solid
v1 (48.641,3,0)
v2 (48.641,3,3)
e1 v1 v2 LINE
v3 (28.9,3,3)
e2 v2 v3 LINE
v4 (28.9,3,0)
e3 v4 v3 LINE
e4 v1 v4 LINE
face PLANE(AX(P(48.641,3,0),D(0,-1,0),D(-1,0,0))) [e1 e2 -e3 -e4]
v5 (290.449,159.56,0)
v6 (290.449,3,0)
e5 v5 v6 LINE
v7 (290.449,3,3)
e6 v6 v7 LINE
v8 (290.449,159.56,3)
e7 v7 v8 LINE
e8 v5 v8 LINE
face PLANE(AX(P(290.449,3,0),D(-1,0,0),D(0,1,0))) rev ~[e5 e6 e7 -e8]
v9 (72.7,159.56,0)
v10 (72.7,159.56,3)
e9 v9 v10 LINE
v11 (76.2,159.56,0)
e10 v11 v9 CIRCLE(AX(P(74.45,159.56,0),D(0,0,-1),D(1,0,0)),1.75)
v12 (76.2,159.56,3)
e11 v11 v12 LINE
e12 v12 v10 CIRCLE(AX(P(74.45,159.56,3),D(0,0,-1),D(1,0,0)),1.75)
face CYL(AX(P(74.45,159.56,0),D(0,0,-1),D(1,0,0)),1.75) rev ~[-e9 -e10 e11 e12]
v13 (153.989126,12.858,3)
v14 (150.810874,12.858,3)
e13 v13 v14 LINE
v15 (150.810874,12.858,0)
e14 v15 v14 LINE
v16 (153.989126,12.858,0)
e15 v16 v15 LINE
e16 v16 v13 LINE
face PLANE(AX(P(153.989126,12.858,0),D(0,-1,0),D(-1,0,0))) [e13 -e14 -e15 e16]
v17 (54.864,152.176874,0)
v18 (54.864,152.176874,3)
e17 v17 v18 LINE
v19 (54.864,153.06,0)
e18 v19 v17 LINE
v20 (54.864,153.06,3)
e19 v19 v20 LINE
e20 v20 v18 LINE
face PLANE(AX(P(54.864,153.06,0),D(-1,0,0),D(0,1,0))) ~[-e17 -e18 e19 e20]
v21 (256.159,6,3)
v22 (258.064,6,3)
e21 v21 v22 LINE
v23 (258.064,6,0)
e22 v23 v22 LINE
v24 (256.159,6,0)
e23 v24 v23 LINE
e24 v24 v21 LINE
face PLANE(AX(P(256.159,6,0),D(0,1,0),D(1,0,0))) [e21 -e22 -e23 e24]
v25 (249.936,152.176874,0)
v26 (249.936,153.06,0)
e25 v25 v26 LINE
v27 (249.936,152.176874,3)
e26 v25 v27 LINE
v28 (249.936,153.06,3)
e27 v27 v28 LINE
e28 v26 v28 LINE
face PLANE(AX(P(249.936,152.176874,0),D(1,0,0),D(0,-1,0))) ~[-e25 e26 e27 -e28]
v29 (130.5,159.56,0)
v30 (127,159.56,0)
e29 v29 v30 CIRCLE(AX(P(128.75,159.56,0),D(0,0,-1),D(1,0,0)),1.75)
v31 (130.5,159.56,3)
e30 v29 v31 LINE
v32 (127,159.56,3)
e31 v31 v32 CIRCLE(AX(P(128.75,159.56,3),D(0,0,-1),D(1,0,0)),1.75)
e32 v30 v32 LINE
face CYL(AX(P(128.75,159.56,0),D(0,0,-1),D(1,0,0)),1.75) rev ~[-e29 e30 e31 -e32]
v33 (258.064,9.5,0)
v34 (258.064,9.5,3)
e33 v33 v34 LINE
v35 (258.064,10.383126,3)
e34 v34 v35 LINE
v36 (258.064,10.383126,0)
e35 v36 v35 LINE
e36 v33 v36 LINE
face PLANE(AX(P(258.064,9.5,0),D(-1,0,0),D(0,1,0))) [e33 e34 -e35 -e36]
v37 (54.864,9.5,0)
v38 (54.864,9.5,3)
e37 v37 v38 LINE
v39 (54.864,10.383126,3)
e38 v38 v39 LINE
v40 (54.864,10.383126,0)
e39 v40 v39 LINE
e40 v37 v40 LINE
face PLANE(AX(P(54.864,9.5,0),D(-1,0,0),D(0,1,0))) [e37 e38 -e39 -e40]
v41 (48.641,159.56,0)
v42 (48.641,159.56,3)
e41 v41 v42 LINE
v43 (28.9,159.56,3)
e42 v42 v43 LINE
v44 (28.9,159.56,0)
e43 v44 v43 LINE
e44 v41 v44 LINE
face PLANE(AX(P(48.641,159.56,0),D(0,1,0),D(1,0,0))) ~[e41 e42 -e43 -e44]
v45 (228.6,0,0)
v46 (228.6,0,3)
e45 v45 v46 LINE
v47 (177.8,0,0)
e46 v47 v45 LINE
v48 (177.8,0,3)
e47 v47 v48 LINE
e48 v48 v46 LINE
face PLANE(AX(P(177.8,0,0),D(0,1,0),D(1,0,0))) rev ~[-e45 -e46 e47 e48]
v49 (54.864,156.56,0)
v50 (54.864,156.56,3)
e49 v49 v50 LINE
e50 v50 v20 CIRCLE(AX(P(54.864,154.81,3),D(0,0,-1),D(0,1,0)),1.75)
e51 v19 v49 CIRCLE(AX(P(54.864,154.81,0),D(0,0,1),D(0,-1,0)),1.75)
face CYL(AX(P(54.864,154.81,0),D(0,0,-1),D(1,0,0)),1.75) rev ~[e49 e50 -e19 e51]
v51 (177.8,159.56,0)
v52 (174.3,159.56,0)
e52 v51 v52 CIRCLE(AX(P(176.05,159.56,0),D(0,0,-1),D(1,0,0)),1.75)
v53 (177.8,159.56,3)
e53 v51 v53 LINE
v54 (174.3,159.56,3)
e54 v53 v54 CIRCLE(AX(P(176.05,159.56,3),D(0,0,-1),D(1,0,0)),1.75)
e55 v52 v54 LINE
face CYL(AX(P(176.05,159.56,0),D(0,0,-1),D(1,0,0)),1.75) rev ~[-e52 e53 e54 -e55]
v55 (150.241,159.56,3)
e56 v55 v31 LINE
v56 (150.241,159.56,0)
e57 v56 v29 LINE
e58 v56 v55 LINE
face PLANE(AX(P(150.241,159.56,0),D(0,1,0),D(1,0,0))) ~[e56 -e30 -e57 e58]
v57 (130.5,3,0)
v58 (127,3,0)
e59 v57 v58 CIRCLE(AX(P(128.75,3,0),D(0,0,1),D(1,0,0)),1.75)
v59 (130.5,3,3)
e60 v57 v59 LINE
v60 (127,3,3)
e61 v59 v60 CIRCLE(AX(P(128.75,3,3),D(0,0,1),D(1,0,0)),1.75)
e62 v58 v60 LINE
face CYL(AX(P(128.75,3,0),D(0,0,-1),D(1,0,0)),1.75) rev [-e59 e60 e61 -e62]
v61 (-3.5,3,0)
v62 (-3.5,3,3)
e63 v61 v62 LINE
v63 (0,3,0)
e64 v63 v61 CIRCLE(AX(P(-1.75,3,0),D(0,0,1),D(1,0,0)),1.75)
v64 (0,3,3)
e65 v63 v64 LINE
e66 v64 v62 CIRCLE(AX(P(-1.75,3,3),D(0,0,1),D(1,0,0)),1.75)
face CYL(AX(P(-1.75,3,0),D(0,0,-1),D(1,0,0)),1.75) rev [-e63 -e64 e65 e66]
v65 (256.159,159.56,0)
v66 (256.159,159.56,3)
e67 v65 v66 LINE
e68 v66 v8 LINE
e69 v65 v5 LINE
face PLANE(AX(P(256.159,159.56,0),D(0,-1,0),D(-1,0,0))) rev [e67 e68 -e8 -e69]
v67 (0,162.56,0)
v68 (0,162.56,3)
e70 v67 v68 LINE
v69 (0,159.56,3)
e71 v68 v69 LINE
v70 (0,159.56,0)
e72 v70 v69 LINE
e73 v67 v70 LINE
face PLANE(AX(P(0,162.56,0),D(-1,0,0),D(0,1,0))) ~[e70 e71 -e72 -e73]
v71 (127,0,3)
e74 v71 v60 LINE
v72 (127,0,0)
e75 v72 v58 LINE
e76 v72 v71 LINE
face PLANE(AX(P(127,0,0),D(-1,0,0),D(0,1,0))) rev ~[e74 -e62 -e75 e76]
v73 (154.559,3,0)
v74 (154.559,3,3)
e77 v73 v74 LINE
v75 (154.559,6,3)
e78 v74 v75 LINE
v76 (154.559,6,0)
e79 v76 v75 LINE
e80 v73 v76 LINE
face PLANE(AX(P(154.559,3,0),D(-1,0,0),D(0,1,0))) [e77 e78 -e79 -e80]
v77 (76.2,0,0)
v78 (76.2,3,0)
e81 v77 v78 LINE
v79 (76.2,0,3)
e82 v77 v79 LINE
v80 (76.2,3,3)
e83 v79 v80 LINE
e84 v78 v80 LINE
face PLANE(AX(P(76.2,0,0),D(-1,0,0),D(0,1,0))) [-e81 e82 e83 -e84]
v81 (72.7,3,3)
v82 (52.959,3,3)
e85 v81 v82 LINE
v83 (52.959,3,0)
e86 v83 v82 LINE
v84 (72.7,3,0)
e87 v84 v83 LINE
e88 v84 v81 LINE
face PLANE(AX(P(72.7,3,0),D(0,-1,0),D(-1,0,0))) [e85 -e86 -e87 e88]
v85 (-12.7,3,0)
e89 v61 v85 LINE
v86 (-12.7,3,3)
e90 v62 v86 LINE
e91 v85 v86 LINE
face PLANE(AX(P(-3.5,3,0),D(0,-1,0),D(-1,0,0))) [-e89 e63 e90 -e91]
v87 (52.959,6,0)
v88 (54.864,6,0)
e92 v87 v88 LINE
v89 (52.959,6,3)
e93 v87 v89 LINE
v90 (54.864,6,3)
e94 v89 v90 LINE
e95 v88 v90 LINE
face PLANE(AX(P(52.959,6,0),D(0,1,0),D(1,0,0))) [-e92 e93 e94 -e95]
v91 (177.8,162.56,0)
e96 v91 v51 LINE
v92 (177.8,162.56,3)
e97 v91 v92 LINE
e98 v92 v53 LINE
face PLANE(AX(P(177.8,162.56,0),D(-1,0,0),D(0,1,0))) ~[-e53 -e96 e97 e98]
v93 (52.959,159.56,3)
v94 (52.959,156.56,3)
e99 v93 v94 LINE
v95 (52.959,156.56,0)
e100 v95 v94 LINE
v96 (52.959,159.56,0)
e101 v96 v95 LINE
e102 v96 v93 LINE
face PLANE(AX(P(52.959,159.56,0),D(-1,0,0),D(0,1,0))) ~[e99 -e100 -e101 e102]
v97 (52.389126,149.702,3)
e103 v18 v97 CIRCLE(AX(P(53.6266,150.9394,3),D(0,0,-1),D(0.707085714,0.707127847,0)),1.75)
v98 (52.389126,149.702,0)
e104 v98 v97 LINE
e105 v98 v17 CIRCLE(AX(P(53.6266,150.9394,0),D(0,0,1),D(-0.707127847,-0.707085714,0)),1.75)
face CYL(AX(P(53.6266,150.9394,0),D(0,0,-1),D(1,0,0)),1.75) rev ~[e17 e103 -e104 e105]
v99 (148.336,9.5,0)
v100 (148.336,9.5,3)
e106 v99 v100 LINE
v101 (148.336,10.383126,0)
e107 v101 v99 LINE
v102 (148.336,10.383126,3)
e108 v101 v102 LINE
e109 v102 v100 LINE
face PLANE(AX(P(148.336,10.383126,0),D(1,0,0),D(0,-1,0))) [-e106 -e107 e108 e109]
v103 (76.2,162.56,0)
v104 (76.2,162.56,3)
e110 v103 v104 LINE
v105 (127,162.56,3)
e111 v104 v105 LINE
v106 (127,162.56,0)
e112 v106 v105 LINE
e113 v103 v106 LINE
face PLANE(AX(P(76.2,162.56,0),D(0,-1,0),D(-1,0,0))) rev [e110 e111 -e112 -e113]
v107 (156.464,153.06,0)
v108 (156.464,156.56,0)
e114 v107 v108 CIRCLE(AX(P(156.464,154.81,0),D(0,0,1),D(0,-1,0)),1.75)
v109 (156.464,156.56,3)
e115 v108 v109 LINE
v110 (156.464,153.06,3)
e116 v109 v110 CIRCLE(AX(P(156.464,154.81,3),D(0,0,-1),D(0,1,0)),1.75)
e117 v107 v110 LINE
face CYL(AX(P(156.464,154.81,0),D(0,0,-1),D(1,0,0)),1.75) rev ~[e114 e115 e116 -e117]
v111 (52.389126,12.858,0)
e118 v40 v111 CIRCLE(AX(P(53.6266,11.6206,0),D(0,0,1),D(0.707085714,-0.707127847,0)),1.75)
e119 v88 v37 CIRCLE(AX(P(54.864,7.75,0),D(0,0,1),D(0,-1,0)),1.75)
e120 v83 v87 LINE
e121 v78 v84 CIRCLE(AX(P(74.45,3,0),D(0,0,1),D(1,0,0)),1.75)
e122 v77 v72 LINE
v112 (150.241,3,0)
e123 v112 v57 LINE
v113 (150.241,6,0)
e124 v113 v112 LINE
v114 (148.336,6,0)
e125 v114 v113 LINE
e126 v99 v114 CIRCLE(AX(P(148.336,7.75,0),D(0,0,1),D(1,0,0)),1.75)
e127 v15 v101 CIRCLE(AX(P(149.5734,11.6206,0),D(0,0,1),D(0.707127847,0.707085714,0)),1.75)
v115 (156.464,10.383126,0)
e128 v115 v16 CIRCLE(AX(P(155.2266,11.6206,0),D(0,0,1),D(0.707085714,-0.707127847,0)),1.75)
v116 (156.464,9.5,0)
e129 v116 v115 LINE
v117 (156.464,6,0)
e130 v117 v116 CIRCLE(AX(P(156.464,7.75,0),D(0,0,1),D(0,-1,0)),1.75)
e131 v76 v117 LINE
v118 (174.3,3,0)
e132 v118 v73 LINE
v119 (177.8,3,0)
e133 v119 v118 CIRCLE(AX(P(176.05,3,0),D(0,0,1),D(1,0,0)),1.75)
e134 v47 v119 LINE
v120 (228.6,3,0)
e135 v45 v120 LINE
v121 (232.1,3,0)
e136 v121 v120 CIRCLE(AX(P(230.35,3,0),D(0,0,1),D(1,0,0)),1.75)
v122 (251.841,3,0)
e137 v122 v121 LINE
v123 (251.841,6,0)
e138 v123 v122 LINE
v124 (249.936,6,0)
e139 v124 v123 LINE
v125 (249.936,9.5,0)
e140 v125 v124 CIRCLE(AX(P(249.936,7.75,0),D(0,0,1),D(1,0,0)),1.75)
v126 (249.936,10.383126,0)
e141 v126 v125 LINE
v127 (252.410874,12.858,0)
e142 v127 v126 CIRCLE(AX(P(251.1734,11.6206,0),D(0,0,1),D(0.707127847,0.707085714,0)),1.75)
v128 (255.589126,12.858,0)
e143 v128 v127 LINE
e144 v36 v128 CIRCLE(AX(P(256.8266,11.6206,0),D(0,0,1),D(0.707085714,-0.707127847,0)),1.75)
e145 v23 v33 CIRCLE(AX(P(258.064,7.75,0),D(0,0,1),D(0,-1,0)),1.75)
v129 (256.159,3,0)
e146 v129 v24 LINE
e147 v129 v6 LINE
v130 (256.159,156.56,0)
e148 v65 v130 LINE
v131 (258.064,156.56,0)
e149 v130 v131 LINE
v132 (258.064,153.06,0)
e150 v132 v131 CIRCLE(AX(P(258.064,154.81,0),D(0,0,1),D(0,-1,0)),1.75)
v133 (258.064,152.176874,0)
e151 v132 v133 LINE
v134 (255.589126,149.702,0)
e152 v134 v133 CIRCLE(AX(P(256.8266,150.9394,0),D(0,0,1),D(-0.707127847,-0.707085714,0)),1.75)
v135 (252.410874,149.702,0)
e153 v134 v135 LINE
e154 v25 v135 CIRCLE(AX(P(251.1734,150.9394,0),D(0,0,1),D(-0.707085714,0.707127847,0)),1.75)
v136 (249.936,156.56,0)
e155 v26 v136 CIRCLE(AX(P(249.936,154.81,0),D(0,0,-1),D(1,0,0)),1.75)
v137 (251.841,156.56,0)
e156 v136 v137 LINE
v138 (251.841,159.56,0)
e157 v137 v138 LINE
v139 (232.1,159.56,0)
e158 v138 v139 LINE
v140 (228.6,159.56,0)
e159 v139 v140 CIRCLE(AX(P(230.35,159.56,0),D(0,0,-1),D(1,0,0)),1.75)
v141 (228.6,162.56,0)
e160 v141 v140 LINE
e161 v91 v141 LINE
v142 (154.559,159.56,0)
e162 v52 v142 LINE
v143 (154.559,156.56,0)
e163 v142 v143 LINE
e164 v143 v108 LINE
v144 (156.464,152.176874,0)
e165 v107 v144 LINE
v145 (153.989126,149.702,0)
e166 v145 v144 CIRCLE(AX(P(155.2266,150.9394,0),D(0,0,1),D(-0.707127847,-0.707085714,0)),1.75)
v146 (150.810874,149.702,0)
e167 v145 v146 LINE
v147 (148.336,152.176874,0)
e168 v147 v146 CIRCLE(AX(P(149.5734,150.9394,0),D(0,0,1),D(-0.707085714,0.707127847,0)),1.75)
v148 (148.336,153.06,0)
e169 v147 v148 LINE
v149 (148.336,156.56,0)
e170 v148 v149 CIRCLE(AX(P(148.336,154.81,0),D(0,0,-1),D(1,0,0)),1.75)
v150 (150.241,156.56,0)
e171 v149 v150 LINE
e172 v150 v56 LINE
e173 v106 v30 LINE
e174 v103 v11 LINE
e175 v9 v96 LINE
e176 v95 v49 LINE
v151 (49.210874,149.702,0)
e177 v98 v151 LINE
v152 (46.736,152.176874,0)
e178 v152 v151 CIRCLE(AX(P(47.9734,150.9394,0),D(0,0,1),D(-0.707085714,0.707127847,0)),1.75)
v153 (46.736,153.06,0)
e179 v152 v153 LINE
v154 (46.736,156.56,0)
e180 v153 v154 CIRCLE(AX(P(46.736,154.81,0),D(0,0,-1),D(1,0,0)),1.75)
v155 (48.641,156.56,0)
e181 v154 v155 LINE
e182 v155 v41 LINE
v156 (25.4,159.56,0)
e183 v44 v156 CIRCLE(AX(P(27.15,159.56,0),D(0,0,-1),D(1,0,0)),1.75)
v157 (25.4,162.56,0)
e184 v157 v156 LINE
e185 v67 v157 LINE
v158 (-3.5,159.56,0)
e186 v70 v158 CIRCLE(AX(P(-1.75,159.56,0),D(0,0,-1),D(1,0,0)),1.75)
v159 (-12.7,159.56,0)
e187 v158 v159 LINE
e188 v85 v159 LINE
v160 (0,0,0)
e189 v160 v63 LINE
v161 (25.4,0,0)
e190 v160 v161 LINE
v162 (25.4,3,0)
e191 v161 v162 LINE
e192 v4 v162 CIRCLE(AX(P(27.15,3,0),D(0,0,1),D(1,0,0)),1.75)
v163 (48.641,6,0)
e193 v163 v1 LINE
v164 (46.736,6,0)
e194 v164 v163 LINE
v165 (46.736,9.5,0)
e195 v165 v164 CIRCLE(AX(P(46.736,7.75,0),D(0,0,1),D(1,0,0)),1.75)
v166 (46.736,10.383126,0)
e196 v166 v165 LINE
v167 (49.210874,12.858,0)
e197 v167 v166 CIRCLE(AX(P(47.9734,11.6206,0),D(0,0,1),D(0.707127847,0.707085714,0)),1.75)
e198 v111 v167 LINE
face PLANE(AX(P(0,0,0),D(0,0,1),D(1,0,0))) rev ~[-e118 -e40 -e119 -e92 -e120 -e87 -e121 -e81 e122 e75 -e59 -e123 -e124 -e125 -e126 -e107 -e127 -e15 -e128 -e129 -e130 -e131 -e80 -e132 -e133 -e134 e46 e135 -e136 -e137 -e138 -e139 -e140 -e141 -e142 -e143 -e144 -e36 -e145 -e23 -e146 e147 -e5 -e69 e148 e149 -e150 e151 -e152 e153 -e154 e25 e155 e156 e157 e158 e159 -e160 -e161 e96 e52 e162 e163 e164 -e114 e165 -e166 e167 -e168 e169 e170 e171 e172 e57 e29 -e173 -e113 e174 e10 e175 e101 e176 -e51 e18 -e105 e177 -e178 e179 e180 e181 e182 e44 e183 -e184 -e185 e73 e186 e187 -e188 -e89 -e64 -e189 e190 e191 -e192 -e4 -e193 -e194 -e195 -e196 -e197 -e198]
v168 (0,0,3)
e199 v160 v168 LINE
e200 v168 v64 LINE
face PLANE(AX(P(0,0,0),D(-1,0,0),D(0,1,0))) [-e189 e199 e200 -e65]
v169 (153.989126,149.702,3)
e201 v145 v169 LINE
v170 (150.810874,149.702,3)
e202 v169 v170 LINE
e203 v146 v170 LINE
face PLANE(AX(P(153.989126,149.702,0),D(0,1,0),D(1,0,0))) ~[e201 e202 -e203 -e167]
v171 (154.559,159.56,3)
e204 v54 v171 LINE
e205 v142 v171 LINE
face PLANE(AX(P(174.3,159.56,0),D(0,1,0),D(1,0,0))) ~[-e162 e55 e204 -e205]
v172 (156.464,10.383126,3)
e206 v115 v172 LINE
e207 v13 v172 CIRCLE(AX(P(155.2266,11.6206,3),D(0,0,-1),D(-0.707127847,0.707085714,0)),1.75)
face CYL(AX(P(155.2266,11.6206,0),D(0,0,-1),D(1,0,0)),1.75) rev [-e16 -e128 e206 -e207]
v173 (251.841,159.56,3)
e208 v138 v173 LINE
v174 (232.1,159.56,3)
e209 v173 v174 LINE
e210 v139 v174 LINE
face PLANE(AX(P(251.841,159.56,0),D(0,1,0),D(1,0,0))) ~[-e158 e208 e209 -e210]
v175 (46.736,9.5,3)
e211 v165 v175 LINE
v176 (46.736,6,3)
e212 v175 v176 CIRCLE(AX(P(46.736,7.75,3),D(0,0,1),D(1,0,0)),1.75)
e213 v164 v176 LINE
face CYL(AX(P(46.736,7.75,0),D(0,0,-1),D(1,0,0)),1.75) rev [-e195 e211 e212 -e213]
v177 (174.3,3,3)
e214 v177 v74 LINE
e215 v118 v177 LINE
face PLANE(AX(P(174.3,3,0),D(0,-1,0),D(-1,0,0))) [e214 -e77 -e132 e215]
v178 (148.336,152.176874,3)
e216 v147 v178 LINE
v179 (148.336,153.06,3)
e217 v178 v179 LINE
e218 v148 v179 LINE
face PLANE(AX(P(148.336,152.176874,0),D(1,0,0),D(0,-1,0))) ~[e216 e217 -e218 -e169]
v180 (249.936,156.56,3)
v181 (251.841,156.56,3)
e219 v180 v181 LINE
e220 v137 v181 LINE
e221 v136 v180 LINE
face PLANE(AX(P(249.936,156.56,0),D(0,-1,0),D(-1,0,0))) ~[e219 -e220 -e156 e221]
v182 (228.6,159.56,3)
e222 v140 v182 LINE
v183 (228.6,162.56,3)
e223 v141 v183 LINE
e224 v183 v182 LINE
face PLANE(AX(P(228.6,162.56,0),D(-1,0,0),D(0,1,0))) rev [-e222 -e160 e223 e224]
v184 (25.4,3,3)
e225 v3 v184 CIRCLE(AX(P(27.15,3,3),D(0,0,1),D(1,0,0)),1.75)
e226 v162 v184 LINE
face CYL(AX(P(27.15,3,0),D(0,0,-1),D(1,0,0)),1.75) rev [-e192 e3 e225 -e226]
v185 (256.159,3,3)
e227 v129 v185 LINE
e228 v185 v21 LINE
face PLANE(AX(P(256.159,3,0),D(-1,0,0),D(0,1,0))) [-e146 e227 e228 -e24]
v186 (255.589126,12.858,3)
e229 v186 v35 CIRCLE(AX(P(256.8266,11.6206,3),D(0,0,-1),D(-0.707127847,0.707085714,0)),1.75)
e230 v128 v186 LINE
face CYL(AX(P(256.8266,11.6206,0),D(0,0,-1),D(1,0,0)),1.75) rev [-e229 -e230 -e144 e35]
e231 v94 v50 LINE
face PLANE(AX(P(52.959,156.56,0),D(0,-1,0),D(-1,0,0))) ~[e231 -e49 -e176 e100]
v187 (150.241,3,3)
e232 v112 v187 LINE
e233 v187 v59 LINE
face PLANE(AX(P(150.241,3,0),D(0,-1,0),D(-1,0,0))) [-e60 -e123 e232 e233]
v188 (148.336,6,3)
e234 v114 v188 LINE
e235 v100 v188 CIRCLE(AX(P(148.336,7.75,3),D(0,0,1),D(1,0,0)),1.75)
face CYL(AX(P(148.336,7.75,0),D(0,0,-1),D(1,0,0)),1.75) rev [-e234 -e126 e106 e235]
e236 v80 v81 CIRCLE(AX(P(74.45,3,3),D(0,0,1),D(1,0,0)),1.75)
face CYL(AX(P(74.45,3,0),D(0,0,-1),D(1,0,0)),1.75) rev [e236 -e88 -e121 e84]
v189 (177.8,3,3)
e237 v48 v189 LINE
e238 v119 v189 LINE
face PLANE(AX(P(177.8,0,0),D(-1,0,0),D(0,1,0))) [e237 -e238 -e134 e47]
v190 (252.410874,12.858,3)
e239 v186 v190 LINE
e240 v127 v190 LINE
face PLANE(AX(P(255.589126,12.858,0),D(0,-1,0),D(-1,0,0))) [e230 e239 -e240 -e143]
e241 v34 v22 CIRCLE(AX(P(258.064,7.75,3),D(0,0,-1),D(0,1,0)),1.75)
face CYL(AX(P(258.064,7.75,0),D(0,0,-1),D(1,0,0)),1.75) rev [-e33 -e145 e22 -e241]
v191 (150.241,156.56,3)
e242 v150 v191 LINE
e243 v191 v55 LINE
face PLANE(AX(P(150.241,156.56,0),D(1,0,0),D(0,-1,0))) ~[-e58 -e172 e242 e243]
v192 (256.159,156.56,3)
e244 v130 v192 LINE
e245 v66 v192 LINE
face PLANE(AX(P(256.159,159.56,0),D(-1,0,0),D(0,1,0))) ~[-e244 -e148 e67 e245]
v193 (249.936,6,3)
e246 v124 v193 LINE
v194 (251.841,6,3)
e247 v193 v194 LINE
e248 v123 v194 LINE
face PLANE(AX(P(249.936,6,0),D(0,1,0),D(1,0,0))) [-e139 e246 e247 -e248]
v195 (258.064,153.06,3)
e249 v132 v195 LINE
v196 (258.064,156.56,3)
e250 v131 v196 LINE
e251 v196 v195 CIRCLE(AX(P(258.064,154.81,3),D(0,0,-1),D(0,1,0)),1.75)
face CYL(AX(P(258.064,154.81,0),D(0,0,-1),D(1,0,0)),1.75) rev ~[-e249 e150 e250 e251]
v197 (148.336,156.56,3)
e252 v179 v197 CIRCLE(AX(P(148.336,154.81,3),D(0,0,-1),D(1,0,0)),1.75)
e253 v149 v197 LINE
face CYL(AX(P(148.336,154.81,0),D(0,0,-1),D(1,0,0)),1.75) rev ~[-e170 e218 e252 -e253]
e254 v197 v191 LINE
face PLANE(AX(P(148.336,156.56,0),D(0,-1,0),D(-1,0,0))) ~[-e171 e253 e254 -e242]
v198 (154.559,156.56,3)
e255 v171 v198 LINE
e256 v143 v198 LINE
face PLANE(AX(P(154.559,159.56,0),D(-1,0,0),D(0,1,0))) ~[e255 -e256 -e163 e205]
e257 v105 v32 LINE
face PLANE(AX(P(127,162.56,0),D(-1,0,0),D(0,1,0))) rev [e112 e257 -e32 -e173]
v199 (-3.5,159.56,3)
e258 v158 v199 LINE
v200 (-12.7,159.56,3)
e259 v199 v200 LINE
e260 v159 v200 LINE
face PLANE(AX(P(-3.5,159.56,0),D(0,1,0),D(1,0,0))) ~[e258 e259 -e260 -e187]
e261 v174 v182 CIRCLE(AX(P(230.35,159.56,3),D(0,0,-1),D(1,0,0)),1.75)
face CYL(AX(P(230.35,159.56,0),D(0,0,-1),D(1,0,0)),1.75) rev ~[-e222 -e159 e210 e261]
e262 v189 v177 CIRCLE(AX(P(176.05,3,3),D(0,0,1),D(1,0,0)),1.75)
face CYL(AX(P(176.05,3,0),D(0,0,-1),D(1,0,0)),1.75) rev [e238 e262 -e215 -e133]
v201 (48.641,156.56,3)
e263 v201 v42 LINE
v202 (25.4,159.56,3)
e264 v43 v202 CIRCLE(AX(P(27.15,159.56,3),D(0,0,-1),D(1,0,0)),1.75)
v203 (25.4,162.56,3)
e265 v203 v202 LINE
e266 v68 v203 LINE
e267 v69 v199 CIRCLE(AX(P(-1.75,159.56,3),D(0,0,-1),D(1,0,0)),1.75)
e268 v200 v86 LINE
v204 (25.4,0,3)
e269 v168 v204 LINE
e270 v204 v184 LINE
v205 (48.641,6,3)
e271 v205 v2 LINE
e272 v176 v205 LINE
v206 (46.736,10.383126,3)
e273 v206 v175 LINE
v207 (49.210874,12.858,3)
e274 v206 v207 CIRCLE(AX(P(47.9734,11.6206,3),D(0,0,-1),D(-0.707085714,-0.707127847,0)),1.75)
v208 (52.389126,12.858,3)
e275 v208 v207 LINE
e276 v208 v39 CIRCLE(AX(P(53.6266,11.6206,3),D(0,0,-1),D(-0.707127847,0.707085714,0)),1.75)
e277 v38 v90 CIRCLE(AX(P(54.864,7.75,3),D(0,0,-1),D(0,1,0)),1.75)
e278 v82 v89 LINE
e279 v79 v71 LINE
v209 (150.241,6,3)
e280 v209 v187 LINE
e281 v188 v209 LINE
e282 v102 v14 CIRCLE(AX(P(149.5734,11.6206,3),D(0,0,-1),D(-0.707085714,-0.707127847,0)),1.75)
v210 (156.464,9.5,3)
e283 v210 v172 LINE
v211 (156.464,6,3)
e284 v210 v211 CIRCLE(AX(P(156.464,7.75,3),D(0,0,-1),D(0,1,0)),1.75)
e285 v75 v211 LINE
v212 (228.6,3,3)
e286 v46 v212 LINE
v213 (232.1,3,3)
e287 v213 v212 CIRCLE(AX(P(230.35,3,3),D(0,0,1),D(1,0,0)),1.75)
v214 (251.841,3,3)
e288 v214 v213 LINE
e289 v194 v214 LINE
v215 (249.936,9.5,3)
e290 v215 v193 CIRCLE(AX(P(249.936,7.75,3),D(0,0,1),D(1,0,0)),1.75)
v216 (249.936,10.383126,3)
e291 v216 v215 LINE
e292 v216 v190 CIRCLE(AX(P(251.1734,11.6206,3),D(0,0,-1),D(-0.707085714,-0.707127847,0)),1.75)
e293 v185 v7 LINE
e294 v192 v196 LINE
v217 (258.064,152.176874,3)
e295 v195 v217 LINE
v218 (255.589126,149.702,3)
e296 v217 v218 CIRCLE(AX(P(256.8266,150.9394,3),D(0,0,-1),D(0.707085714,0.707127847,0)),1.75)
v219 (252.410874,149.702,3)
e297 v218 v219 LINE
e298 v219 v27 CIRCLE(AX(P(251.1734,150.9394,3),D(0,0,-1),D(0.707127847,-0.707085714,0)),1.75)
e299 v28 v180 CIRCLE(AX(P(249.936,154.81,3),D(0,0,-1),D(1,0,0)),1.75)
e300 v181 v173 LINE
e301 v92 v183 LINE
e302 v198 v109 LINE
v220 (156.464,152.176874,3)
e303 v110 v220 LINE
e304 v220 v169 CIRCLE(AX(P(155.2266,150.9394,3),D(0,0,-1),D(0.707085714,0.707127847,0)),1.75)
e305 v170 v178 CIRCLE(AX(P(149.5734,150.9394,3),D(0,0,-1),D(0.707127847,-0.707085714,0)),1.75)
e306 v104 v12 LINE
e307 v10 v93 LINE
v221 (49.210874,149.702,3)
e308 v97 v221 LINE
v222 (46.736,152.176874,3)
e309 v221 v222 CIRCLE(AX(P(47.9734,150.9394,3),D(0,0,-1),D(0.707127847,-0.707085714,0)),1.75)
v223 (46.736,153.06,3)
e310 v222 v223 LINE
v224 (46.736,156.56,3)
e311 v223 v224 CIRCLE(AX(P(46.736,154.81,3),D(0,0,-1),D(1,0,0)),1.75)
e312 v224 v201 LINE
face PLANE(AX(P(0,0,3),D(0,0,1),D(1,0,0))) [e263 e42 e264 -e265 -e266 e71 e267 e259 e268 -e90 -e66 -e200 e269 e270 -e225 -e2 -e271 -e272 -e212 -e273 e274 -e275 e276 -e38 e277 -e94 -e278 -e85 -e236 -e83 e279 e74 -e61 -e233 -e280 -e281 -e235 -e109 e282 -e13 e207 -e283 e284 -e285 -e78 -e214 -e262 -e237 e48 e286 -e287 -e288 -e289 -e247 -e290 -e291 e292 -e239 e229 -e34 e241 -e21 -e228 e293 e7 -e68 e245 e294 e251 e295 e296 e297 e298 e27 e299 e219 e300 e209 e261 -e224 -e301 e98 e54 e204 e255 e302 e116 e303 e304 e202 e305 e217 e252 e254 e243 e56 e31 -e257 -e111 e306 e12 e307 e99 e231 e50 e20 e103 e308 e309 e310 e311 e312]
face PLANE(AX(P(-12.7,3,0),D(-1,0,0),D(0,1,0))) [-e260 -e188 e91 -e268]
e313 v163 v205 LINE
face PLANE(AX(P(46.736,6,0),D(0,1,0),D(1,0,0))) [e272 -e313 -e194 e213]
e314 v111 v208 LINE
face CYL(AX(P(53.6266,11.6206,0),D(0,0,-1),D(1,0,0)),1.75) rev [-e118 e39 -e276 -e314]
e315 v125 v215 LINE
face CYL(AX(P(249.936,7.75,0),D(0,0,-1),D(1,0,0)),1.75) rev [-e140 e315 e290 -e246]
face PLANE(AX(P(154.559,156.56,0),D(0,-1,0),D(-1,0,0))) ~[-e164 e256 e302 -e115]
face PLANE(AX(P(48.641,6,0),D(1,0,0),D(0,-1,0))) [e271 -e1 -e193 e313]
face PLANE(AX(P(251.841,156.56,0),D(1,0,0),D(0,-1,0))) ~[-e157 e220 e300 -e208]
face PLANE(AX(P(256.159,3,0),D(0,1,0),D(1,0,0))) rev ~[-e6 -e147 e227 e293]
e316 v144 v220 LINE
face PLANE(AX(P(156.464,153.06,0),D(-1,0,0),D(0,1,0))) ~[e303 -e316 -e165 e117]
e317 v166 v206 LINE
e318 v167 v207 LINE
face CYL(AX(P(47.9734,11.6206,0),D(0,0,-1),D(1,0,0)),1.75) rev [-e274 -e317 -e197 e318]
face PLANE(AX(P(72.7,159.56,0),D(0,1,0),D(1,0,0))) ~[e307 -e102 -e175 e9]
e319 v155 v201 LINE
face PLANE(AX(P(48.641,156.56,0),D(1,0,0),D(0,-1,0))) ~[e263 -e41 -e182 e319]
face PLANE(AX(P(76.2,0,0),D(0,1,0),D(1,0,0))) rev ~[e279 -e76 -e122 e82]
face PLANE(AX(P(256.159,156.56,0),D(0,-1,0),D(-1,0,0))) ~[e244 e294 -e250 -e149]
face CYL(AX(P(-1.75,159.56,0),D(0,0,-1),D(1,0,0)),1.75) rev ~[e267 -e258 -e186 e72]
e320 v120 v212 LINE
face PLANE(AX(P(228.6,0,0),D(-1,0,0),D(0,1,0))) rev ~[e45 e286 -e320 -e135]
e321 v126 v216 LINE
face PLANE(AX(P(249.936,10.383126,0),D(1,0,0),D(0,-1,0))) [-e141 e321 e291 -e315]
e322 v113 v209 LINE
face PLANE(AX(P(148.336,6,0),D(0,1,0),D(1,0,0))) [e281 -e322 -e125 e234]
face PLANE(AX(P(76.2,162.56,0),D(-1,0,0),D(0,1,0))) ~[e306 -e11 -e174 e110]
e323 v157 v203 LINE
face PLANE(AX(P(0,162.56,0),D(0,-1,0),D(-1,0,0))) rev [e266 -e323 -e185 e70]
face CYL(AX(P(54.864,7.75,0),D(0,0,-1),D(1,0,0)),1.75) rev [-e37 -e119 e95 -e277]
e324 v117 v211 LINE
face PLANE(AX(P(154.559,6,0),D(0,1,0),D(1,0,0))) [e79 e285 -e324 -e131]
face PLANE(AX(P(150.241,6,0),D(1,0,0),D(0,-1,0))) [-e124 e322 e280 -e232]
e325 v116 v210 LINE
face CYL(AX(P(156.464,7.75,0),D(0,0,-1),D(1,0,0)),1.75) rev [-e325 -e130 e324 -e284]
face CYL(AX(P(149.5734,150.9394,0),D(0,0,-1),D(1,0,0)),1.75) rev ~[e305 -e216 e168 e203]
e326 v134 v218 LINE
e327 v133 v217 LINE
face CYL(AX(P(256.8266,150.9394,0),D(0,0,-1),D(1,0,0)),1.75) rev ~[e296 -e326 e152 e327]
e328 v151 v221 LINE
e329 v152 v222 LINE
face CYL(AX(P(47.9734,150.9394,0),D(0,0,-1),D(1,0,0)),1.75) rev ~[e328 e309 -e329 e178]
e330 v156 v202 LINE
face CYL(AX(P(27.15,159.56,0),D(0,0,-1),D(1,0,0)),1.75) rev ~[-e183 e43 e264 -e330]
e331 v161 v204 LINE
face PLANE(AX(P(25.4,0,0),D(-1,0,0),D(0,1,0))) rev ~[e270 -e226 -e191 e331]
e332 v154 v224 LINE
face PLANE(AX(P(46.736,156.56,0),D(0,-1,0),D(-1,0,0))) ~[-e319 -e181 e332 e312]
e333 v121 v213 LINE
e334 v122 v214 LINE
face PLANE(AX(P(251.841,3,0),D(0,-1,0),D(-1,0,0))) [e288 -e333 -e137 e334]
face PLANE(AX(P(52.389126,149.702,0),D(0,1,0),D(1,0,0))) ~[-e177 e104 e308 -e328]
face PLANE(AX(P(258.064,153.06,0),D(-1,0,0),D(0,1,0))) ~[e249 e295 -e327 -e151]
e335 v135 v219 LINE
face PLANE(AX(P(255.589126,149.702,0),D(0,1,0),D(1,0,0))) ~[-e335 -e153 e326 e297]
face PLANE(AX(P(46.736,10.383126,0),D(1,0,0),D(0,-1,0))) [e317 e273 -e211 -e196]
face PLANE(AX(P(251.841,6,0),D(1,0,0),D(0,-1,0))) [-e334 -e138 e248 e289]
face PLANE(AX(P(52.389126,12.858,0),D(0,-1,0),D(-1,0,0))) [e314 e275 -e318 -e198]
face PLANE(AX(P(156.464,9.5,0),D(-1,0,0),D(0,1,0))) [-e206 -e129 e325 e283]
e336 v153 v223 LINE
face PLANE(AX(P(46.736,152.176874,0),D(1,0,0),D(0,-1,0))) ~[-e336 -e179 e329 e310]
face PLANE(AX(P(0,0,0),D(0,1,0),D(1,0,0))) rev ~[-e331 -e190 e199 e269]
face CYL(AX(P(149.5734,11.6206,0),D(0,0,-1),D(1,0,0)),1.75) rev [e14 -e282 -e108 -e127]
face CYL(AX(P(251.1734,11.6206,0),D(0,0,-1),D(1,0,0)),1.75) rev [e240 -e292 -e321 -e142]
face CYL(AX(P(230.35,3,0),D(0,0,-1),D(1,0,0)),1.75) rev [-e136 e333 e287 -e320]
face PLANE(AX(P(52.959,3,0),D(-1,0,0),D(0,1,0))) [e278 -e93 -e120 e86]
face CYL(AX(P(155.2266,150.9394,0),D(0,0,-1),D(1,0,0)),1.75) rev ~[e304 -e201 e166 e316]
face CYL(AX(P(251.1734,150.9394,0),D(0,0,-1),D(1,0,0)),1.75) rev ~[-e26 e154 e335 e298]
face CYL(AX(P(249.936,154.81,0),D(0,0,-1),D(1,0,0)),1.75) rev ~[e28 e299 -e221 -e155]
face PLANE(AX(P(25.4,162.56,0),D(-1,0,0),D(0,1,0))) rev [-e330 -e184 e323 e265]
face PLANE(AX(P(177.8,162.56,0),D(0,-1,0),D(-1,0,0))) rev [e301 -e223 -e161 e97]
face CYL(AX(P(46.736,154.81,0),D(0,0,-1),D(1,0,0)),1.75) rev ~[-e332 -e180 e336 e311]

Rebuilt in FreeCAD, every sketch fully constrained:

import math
import FreeCAD as App
import Part
import Sketcher
Q = App.Units.Quantity

doc = App.newDocument("Part")
body = doc.addObject("PartDesign::Body", "Body")

# Sketch on XY plane
sketch1 = body.newObject("Sketcher::SketchObject", "Sketch")
sketch1.AttachmentSupport = (doc.getObject("XY_Plane"), [""])
sketch1.MapMode = "FlatFace"
sketch1.addGeometry([
    Part.LineSegment(App.Vector(0, 3, 0), App.Vector(0, 0, 0)),  # 0
    Part.LineSegment(App.Vector(0, 0, 0), App.Vector(25.4, 0, 0)),  # 1
    Part.LineSegment(App.Vector(25.4, 0, 0), App.Vector(25.4, 3, 0)),  # 2
    Part.ArcOfCircle(Part.Circle(App.Vector(27.1, 3, 0), App.Vector(0, 0, 1), 1.8), math.radians(0), math.radians(180)),  # 3
    Part.LineSegment(App.Vector(28.9, 3, 0), App.Vector(48.6, 3, 0)),  # 4
    Part.LineSegment(App.Vector(48.6, 3, 0), App.Vector(48.6, 6, 0)),  # 5
    Part.LineSegment(App.Vector(48.6, 6, 0), App.Vector(46.7, 6, 0)),  # 6
    Part.ArcOfCircle(Part.Circle(App.Vector(46.7, 7.8, 0), App.Vector(0, 0, 1), 1.8), math.radians(90), math.radians(270)),  # 7
    Part.LineSegment(App.Vector(46.7, 9.5, 0), App.Vector(46.7, 10.4, 0)),  # 8
    Part.ArcOfCircle(Part.Circle(App.Vector(48, 11.6, 0), App.Vector(0, 0, 1), 1.8), math.radians(45), math.radians(225)),  # 9
    Part.LineSegment(App.Vector(49.2, 12.9, 0), App.Vector(52.4, 12.9, 0)),  # 10
    Part.ArcOfCircle(Part.Circle(App.Vector(53.6, 11.6, 0), App.Vector(0, 0, 1), 1.8), math.radians(-45), math.radians(135)),  # 11
    Part.LineSegment(App.Vector(54.9, 10.4, 0), App.Vector(54.9, 9.5, 0)),  # 12
    Part.ArcOfCircle(Part.Circle(App.Vector(54.9, 7.8, 0), App.Vector(0, 0, 1), 1.8), math.radians(-90), math.radians(90)),  # 13
    Part.LineSegment(App.Vector(54.9, 6, 0), App.Vector(53, 6, 0)),  # 14
    Part.LineSegment(App.Vector(53, 6, 0), App.Vector(53, 3, 0)),  # 15
    Part.LineSegment(App.Vector(53, 3, 0), App.Vector(72.7, 3, 0)),  # 16
    Part.ArcOfCircle(Part.Circle(App.Vector(74.5, 3, 0), App.Vector(0, 0, 1), 1.8), math.radians(0), math.radians(180)),  # 17
    Part.LineSegment(App.Vector(76.2, 3, 0), App.Vector(76.2, 0, 0)),  # 18
    Part.LineSegment(App.Vector(76.2, 0, 0), App.Vector(127, 0, 0)),  # 19
    Part.LineSegment(App.Vector(127, 0, 0), App.Vector(127, 3, 0)),  # 20
    Part.ArcOfCircle(Part.Circle(App.Vector(128.8, 3, 0), App.Vector(0, 0, 1), 1.8), math.radians(0), math.radians(180)),  # 21
    Part.LineSegment(App.Vector(130.5, 3, 0), App.Vector(150.2, 3, 0)),  # 22
    Part.LineSegment(App.Vector(150.2, 3, 0), App.Vector(150.2, 6, 0)),  # 23
    Part.LineSegment(App.Vector(150.2, 6, 0), App.Vector(148.3, 6, 0)),  # 24
    Part.ArcOfCircle(Part.Circle(App.Vector(148.3, 7.8, 0), App.Vector(0, 0, 1), 1.8), math.radians(90), math.radians(270)),  # 25
    Part.LineSegment(App.Vector(148.3, 9.5, 0), App.Vector(148.3, 10.4, 0)),  # 26
    Part.ArcOfCircle(Part.Circle(App.Vector(149.6, 11.6, 0), App.Vector(0, 0, 1), 1.8), math.radians(45), math.radians(225)),  # 27
    Part.LineSegment(App.Vector(150.8, 12.9, 0), App.Vector(154, 12.9, 0)),  # 28
    Part.ArcOfCircle(Part.Circle(App.Vector(155.2, 11.6, 0), App.Vector(0, 0, 1), 1.8), math.radians(-45), math.radians(135)),  # 29
    Part.LineSegment(App.Vector(156.5, 10.4, 0), App.Vector(156.5, 9.5, 0)),  # 30
    Part.ArcOfCircle(Part.Circle(App.Vector(156.5, 7.8, 0), App.Vector(0, 0, 1), 1.8), math.radians(-90), math.radians(90)),  # 31
    Part.LineSegment(App.Vector(156.5, 6, 0), App.Vector(154.6, 6, 0)),  # 32
    Part.LineSegment(App.Vector(154.6, 6, 0), App.Vector(154.6, 3, 0)),  # 33
    Part.LineSegment(App.Vector(154.6, 3, 0), App.Vector(174.3, 3, 0)),  # 34
    Part.ArcOfCircle(Part.Circle(App.Vector(176.1, 3, 0), App.Vector(0, 0, 1), 1.8), math.radians(0), math.radians(180)),  # 35
    Part.LineSegment(App.Vector(177.8, 3, 0), App.Vector(177.8, 0, 0)),  # 36
    Part.LineSegment(App.Vector(177.8, 0, 0), App.Vector(228.6, 0, 0)),  # 37
    Part.LineSegment(App.Vector(228.6, 0, 0), App.Vector(228.6, 3, 0)),  # 38
    Part.ArcOfCircle(Part.Circle(App.Vector(230.3, 3, 0), App.Vector(0, 0, 1), 1.8), math.radians(0), math.radians(180)),  # 39
    Part.LineSegment(App.Vector(232.1, 3, 0), App.Vector(251.8, 3, 0)),  # 40
    Part.LineSegment(App.Vector(251.8, 3, 0), App.Vector(251.8, 6, 0)),  # 41
    Part.LineSegment(App.Vector(251.8, 6, 0), App.Vector(249.9, 6, 0)),  # 42
    Part.ArcOfCircle(Part.Circle(App.Vector(249.9, 7.8, 0), App.Vector(0, 0, 1), 1.8), math.radians(90), math.radians(270)),  # 43
    Part.LineSegment(App.Vector(249.9, 9.5, 0), App.Vector(249.9, 10.4, 0)),  # 44
    Part.ArcOfCircle(Part.Circle(App.Vector(251.2, 11.6, 0), App.Vector(0, 0, 1), 1.8), math.radians(45), math.radians(225)),  # 45
    Part.LineSegment(App.Vector(252.4, 12.9, 0), App.Vector(255.6, 12.9, 0)),  # 46
    Part.ArcOfCircle(Part.Circle(App.Vector(256.8, 11.6, 0), App.Vector(0, 0, 1), 1.8), math.radians(-45), math.radians(135)),  # 47
    Part.LineSegment(App.Vector(258.1, 10.4, 0), App.Vector(258.1, 9.5, 0)),  # 48
    Part.ArcOfCircle(Part.Circle(App.Vector(258.1, 7.8, 0), App.Vector(0, 0, 1), 1.8), math.radians(-90), math.radians(90)),  # 49
    Part.LineSegment(App.Vector(258.1, 6, 0), App.Vector(256.2, 6, 0)),  # 50
    Part.LineSegment(App.Vector(256.2, 6, 0), App.Vector(256.2, 3, 0)),  # 51
    Part.LineSegment(App.Vector(256.2, 3, 0), App.Vector(290.4, 3, 0)),  # 52
    Part.LineSegment(App.Vector(290.4, 3, 0), App.Vector(290.4, 81.3, 0)),  # 53
    Part.LineSegment(App.Vector(290.4, 81.3, 0), App.Vector(-12.7, 81.3, 0)),  # 54
    Part.LineSegment(App.Vector(-12.7, 81.3, 0), App.Vector(-12.7, 3, 0)),  # 55
    Part.LineSegment(App.Vector(-12.7, 3, 0), App.Vector(-3.5, 3, 0)),  # 56
    Part.ArcOfCircle(Part.Circle(App.Vector(-1.8, 3, 0), App.Vector(0, 0, 1), 1.8), math.radians(0), math.radians(180)),  # 57
], False)
sketch1.addConstraint([
    Sketcher.Constraint("Coincident", 0, 2, 1, 1),
    Sketcher.Constraint("Coincident", 1, 2, 2, 1),
    Sketcher.Constraint("Tangent", 2, 2, 3, 2),
    Sketcher.Constraint("Coincident", 3, 1, 4, 1),
    Sketcher.Constraint("Coincident", 4, 2, 5, 1),
    Sketcher.Constraint("Coincident", 5, 2, 6, 1),
    Sketcher.Constraint("Tangent", 6, 2, 7, 2),
    Sketcher.Constraint("Coincident", 7, 1, 8, 1),
    Sketcher.Constraint("Coincident", 8, 2, 9, 2),
    Sketcher.Constraint("Coincident", 9, 1, 10, 1),
    Sketcher.Constraint("Coincident", 10, 2, 11, 2),
    Sketcher.Constraint("Coincident", 11, 1, 12, 1),
    Sketcher.Constraint("Coincident", 12, 2, 13, 2),
    Sketcher.Constraint("Tangent", 13, 1, 14, 1),
    Sketcher.Constraint("Coincident", 14, 2, 15, 1),
    Sketcher.Constraint("Coincident", 15, 2, 16, 1),
    Sketcher.Constraint("Coincident", 16, 2, 17, 2),
    Sketcher.Constraint("Tangent", 17, 1, 18, 1),
    Sketcher.Constraint("Coincident", 18, 2, 19, 1),
    Sketcher.Constraint("Coincident", 19, 2, 20, 1),
    Sketcher.Constraint("Tangent", 20, 2, 21, 2),
    Sketcher.Constraint("Coincident", 21, 1, 22, 1),
    Sketcher.Constraint("Coincident", 22, 2, 23, 1),
    Sketcher.Constraint("Coincident", 23, 2, 24, 1),
    Sketcher.Constraint("Tangent", 24, 2, 25, 2),
    Sketcher.Constraint("Coincident", 25, 1, 26, 1),
    Sketcher.Constraint("Coincident", 26, 2, 27, 2),
    Sketcher.Constraint("Coincident", 27, 1, 28, 1),
    Sketcher.Constraint("Coincident", 28, 2, 29, 2),
    Sketcher.Constraint("Coincident", 29, 1, 30, 1),
    Sketcher.Constraint("Coincident", 30, 2, 31, 2),
    Sketcher.Constraint("Tangent", 31, 1, 32, 1),
    Sketcher.Constraint("Coincident", 32, 2, 33, 1),
    Sketcher.Constraint("Coincident", 33, 2, 34, 1),
    Sketcher.Constraint("Coincident", 34, 2, 35, 2),
    Sketcher.Constraint("Tangent", 35, 1, 36, 1),
    Sketcher.Constraint("Coincident", 36, 2, 37, 1),
    Sketcher.Constraint("Coincident", 37, 2, 38, 1),
    Sketcher.Constraint("Tangent", 38, 2, 39, 2),
    Sketcher.Constraint("Coincident", 39, 1, 40, 1),
    Sketcher.Constraint("Coincident", 40, 2, 41, 1),
    Sketcher.Constraint("Coincident", 41, 2, 42, 1),
    Sketcher.Constraint("Tangent", 42, 2, 43, 2),
    Sketcher.Constraint("Coincident", 43, 1, 44, 1),
    Sketcher.Constraint("Coincident", 44, 2, 45, 2),
    Sketcher.Constraint("Coincident", 45, 1, 46, 1),
    Sketcher.Constraint("Coincident", 46, 2, 47, 2),
    Sketcher.Constraint("Coincident", 47, 1, 48, 1),
    Sketcher.Constraint("Coincident", 48, 2, 49, 2),
    Sketcher.Constraint("Tangent", 49, 1, 50, 1),
    Sketcher.Constraint("Coincident", 50, 2, 51, 1),
    Sketcher.Constraint("Coincident", 51, 2, 52, 1),
    Sketcher.Constraint("Coincident", 52, 2, 53, 1),
    Sketcher.Constraint("Coincident", 53, 2, 54, 1),
    Sketcher.Constraint("Coincident", 54, 2, 55, 1),
    Sketcher.Constraint("Coincident", 55, 2, 56, 1),
    Sketcher.Constraint("Coincident", 56, 2, 57, 2),
    Sketcher.Constraint("Tangent", 57, 1, 0, 1),
    Sketcher.Constraint("Vertical", 0),
    Sketcher.Constraint("Horizontal", 1),
    Sketcher.Constraint("Vertical", 2),
    Sketcher.Constraint("Horizontal", 4),
    Sketcher.Constraint("Vertical", 5),
    Sketcher.Constraint("Horizontal", 6),
    Sketcher.Constraint("Vertical", 8),
    Sketcher.Constraint("Horizontal", 10),
    Sketcher.Constraint("Vertical", 12),
    Sketcher.Constraint("Horizontal", 14),
    Sketcher.Constraint("Vertical", 15),
    Sketcher.Constraint("Horizontal", 16),
    Sketcher.Constraint("Vertical", 18),
    Sketcher.Constraint("Horizontal", 19),
    Sketcher.Constraint("Vertical", 20),
    Sketcher.Constraint("Horizontal", 22),
    Sketcher.Constraint("Vertical", 23),
    Sketcher.Constraint("Horizontal", 24),
    Sketcher.Constraint("Vertical", 26),
    Sketcher.Constraint("Horizontal", 28),
    Sketcher.Constraint("Vertical", 30),
    Sketcher.Constraint("Horizontal", 32),
    Sketcher.Constraint("Vertical", 33),
    Sketcher.Constraint("Horizontal", 34),
    Sketcher.Constraint("Vertical", 36),
    Sketcher.Constraint("Horizontal", 37),
    Sketcher.Constraint("Vertical", 38),
    Sketcher.Constraint("Horizontal", 40),
    Sketcher.Constraint("Vertical", 41),
    Sketcher.Constraint("Horizontal", 42),
    Sketcher.Constraint("Vertical", 44),
    Sketcher.Constraint("Horizontal", 46),
    Sketcher.Constraint("Vertical", 48),
    Sketcher.Constraint("Horizontal", 50),
    Sketcher.Constraint("Vertical", 51),
    Sketcher.Constraint("Horizontal", 52),
    Sketcher.Constraint("Vertical", 53),
    Sketcher.Constraint("Horizontal", 54),
    Sketcher.Constraint("Vertical", 55),
    Sketcher.Constraint("Horizontal", 56),
    Sketcher.Constraint("Coincident", 0, 2, -1, 1),
    Sketcher.Constraint("Equal", 3, 7),
    Sketcher.Constraint("Equal", 7, 9),
    Sketcher.Constraint("Equal", 9, 11),
    Sketcher.Constraint("Equal", 11, 13),
    Sketcher.Constraint("Equal", 13, 17),
    Sketcher.Constraint("Equal", 17, 21),
    Sketcher.Constraint("Equal", 21, 25),
    Sketcher.Constraint("Equal", 25, 27),
    Sketcher.Constraint("Equal", 27, 29),
    Sketcher.Constraint("Equal", 29, 31),
    Sketcher.Constraint("Equal", 31, 35),
    Sketcher.Constraint("Equal", 35, 39),
    Sketcher.Constraint("Equal", 39, 43),
    Sketcher.Constraint("Equal", 43, 45),
    Sketcher.Constraint("Equal", 45, 47),
    Sketcher.Constraint("Equal", 47, 49),
    Sketcher.Constraint("Equal", 49, 57),
    Sketcher.Constraint("PointOnObject", 18, 2, -1),
    Sketcher.Constraint("PointOnObject", 36, 2, -1),
    Sketcher.Constraint("Horizontal", 9, 3, 11, 3),
    Sketcher.Constraint("Horizontal", 7, 3, 13, 3),
    Sketcher.Constraint("Horizontal", 3, 3, 17, 3),
    Sketcher.Constraint("Horizontal", 17, 3, 21, 3),
    Sketcher.Constraint("Horizontal", 13, 3, 25, 3),
    Sketcher.Constraint("Horizontal", 11, 3, 27, 3),
    Sketcher.Constraint("Horizontal", 27, 3, 29, 3),
    Sketcher.Constraint("Horizontal", 25, 3, 31, 3),
    Sketcher.Constraint("Horizontal", 21, 3, 35, 3),
    Sketcher.Constraint("Horizontal", 35, 3, 39, 3),
    Sketcher.Constraint("Horizontal", 31, 3, 43, 3),
    Sketcher.Constraint("Horizontal", 29, 3, 45, 3),
    Sketcher.Constraint("Horizontal", 45, 3, 47, 3),
    Sketcher.Constraint("Horizontal", 43, 3, 49, 3),
    Sketcher.Constraint("Horizontal", 39, 3, 57, 3),
    Sketcher.Constraint("Horizontal", 2, 2, 3, 1),
    Sketcher.Constraint("Horizontal", 8, 2, 11, 1),
    Sketcher.Constraint("Horizontal", 4, 2, 15, 2),
    Sketcher.Constraint("Horizontal", 20, 2, 21, 1),
    Sketcher.Constraint("Horizontal", 11, 1, 26, 2),
    Sketcher.Constraint("Horizontal", 10, 2, 27, 1),
    Sketcher.Constraint("Horizontal", 26, 2, 29, 1),
    Sketcher.Constraint("Horizontal", 22, 2, 33, 2),
    Sketcher.Constraint("Horizontal", 38, 2, 39, 1),
    Sketcher.Constraint("Horizontal", 29, 1, 44, 2),
    Sketcher.Constraint("Horizontal", 28, 2, 45, 1),
    Sketcher.Constraint("Horizontal", 44, 2, 47, 1),
    Sketcher.Constraint("Horizontal", 40, 2, 51, 2),
    Sketcher.Constraint("Horizontal", 52, 2, 55, 2),
    Sketcher.Constraint("Vertical", 6, 2, 7, 1),
    Sketcher.Constraint("Vertical", 13, 3, 11, 1),
    Sketcher.Constraint("Vertical", 24, 2, 25, 1),
    Sketcher.Constraint("Vertical", 31, 3, 29, 1),
    Sketcher.Constraint("Vertical", 42, 2, 43, 1),
    Sketcher.Constraint("Vertical", 49, 3, 47, 1),
    Sketcher.Constraint("Equal", 6, 14),
    Sketcher.Constraint("Equal", 4, 16),
    Sketcher.Constraint("Equal", 16, 22),
    Sketcher.Constraint("Equal", 14, 24),
    Sketcher.Constraint("Equal", 10, 28),
    Sketcher.Constraint("Equal", 24, 32),
    Sketcher.Constraint("Equal", 22, 34),
    Sketcher.Constraint("Equal", 19, 37),
    Sketcher.Constraint("Equal", 34, 40),
    Sketcher.Constraint("Equal", 32, 42),
    Sketcher.Constraint("Equal", 28, 46),
    Sketcher.Constraint("Equal", 42, 50),
    Sketcher.Constraint("Equal", 2, 5),
    Sketcher.Constraint("DistanceX", 52, 1, 52, 2, Q("1.35 in")),
    Sketcher.Constraint("DistanceX", 54, 2, -1, 1, Q("0.5 in")),
    Sketcher.Constraint("Radius", 3, Q("0.0689 in")),
    Sketcher.Constraint("DistanceX", 1, 1, 1, 2, Q("1 in")),
    Sketcher.Constraint("DistanceX", 19, 1, 19, 2, Q("2 in")),
    Sketcher.Constraint("DistanceY", 0, 2, 0, 1, Q("0.1181 in")),
    Sketcher.Constraint("DistanceX", -1, 1, 17, 1, Q("3 in")),
    Sketcher.Constraint("DistanceY", -1, 1, 53, 2, Q("3.2 in")),
    Sketcher.Constraint("DistanceX", 6, 2, 6, 1, Q("0.075 in")),
    Sketcher.Constraint("DistanceX", 54, 2, 54, 1, Q("11.935 in")),
    Sketcher.Constraint("DistanceX", 10, 1, 10, 2, 3.1783),
    Sketcher.Constraint("DistanceY", 8, 1, 8, 2, 0.8831),
    Sketcher.Constraint("DistanceY", -1, 1, 9, 3, Q("0.4575 in")),
])
pad1 = body.newObject("PartDesign::Pad", "Pad")
pad1.Profile = sketch1
pad1.Length = Q("0.1181102 in")
doc.recompute()

datumplane = body.newObject("PartDesign::Plane", "DatumPlane")
datumplane.AttachmentSupport = (doc.getObject("XZ_Plane"), [""])
datumplane.MapMode = "FlatFace"
datumplane.AttachmentOffset = App.Placement(App.Vector(0, 0, -3.2 * 25.4), App.Rotation())
mirrored = body.newObject("PartDesign::Mirrored", "Mirrored")
mirrored.Originals = [pad1]
mirrored.MirrorPlane = (datumplane, [""])
body.Tip = mirrored

doc.recompute()
